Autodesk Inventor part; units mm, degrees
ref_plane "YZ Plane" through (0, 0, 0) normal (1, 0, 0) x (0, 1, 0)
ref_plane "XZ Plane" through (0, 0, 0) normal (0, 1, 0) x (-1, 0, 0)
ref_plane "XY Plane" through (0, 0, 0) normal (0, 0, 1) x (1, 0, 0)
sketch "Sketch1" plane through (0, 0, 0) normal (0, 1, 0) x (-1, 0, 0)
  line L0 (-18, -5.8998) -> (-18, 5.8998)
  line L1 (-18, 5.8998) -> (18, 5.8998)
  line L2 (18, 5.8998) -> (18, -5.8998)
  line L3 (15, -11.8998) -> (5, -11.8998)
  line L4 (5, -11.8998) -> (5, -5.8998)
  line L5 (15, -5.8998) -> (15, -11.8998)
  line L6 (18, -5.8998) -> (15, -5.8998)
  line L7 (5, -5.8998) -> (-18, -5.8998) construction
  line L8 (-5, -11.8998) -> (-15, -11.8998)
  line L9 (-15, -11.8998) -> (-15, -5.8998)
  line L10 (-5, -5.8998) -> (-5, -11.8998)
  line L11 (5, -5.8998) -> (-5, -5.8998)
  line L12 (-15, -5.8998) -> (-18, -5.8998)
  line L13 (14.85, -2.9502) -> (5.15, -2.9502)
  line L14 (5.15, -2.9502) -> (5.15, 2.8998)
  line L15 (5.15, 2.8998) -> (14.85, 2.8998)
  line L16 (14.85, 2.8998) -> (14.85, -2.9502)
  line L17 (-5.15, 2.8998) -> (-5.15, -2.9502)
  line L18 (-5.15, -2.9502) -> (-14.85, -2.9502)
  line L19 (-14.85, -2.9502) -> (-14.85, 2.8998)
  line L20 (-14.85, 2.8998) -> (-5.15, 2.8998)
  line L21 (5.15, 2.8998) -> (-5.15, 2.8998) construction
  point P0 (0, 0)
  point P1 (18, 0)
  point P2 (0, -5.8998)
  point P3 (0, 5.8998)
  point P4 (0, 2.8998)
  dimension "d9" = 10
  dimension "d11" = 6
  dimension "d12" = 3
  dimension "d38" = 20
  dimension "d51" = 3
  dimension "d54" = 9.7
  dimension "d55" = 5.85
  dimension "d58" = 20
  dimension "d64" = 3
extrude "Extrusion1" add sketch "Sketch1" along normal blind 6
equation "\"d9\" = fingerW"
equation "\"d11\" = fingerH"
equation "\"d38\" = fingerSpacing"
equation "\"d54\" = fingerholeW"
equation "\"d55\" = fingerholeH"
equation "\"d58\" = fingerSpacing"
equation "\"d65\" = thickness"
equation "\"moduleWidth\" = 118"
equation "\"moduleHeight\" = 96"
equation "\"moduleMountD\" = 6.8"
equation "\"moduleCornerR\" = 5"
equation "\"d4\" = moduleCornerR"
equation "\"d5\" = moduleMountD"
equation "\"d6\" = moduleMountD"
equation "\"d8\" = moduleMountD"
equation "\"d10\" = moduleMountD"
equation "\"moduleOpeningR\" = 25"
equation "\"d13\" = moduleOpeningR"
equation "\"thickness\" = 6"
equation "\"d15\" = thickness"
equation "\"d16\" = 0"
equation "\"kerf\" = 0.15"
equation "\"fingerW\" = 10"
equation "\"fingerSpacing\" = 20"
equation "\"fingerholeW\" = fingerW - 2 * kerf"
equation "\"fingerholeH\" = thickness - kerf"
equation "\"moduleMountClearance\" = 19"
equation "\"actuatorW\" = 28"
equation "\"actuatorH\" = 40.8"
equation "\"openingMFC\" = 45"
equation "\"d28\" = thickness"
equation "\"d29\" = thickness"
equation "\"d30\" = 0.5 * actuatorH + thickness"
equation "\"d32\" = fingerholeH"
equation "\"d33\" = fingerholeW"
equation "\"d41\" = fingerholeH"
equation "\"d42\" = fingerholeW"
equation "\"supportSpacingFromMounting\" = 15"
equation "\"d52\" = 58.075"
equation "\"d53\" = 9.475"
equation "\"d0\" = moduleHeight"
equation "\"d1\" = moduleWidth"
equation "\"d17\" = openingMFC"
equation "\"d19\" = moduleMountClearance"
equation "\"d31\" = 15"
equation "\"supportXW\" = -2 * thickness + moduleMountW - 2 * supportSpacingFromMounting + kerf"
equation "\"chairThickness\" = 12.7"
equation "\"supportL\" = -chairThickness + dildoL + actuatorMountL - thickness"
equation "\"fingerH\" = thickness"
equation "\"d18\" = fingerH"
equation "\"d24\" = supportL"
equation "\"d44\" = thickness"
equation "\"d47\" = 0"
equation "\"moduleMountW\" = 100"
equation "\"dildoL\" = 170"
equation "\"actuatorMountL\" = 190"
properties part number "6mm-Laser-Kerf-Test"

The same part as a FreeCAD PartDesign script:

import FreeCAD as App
import Part
import Sketcher

V = App.Vector
Q = App.Units.Quantity


def add_polygon(sketch, points):
    """Adds a closed chain of lines whose ends are joined by coincident constraints."""
    first, n = sketch.GeometryCount, len(points)
    for a, b in zip(points, points[1:] + points[:1]):
        sketch.addGeometry(Part.LineSegment(App.Vector(*a, 0), App.Vector(*b, 0)), False)
    for i in range(n):
        sketch.addConstraint(Sketcher.Constraint("Coincident", first + i, 2, first + (i + 1) % n, 1))

doc = App.newDocument("Part")
body = doc.addObject("PartDesign::Body", "Body")

sketch1 = body.newObject("Sketcher::SketchObject", "Sketch")
sketch1.AttachmentSupport = (doc.getObject("XZ_Plane"), [""])
sketch1.MapMode = "FlatFace"
add_polygon(sketch1, [(18, 5.9), (18, -5.9), (15, -5.9), (15, -11.9), (5, -11.9), (5, -5.9), (-5, -5.9), (-5, -11.9), (-15, -11.9), (-15, -5.9), (-18, -5.9), (-18, 5.9)])
add_polygon(sketch1, [(14.8, 2.9), (5.2, 2.9), (5.2, -3), (14.8, -3)])
add_polygon(sketch1, [(-14.8, 2.9), (-14.8, -3), (-5.2, -3), (-5.2, 2.9)])
sketch1.addConstraint([
    Sketcher.Constraint("Vertical", 0),
    Sketcher.Constraint("Horizontal", 1),
    Sketcher.Constraint("Vertical", 2),
    Sketcher.Constraint("Horizontal", 3),
    Sketcher.Constraint("Vertical", 4),
    Sketcher.Constraint("Horizontal", 5),
    Sketcher.Constraint("Vertical", 6),
    Sketcher.Constraint("Horizontal", 7),
    Sketcher.Constraint("Vertical", 8),
    Sketcher.Constraint("Horizontal", 9),
    Sketcher.Constraint("Vertical", 10),
    Sketcher.Constraint("Horizontal", 11),
    Sketcher.Constraint("Horizontal", 12),
    Sketcher.Constraint("Vertical", 13),
    Sketcher.Constraint("Horizontal", 14),
    Sketcher.Constraint("Vertical", 15),
    Sketcher.Constraint("Vertical", 16),
    Sketcher.Constraint("Horizontal", 17),
    Sketcher.Constraint("Vertical", 18),
    Sketcher.Constraint("Horizontal", 19),
    Sketcher.Constraint("Symmetric", 0, 2, 10, 2, -1, 1),
    Sketcher.Constraint("Symmetric", 3, 2, 6, 2, -2),
    Sketcher.Constraint("Symmetric", 1, 2, 8, 2, -2),
    Sketcher.Constraint("Symmetric", 14, 2, 16, 2, -2),
    Sketcher.Constraint("Symmetric", 12, 2, 18, 2, -2),
    Sketcher.Constraint("Horizontal", 1, 2, 4, 2),
    Sketcher.Constraint("Equal", 3, 5),
    Sketcher.Constraint("DistanceX", 1, 2, 1, 1, Q("3 mm")),
    Sketcher.Constraint("DistanceX", 3, 2, 3, 1, Q("10 mm")),
    Sketcher.Constraint("DistanceY", 2, 2, 2, 1, Q("6 mm")),
    Sketcher.Constraint("DistanceX", 12, 2, 12, 1, Q("9.7 mm")),
    Sketcher.Constraint("DistanceY", 12, 2, 11, 2, Q("3 mm")),
    Sketcher.Constraint("DistanceY", 13, 2, 13, 1, Q("5.85 mm")),
    Sketcher.Constraint("DistanceX", 17, 2, 13, 2, Q("10.3 mm")),
    Sketcher.Constraint("DistanceY", 0, 2, 0, 1, Q("11.7996 mm")),
])
pad1 = body.newObject("PartDesign::Pad", "Pad")
pad1.Profile = sketch1
pad1.Length = 6
pad1.Reversed = True

doc.recompute()
